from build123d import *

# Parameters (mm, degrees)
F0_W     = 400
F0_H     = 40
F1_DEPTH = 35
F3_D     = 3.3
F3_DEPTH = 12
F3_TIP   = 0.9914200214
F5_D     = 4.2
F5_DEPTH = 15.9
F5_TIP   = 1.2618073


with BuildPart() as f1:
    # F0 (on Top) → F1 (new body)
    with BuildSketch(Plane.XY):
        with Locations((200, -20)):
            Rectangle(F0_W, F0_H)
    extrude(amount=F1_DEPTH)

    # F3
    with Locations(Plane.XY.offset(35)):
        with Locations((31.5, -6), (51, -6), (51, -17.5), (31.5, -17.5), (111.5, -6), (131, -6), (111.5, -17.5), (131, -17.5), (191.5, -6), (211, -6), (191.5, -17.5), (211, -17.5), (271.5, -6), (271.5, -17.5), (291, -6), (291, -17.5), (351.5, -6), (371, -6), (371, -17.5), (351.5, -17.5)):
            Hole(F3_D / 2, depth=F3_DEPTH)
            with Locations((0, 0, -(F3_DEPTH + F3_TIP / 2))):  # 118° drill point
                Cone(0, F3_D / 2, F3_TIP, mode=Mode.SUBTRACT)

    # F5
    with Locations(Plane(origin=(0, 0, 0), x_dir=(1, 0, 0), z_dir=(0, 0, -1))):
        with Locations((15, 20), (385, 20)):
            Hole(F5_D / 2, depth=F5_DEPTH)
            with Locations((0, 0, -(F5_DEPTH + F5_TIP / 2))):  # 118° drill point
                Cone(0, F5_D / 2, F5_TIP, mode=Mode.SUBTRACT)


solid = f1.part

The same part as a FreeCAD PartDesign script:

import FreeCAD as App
import Part
import Sketcher
from FreeCAD import Vector

doc = App.newDocument("Part")
params = doc.addObject("Spreadsheet::Sheet", "Params")
for row, (alias, value) in enumerate([
    ("sketch1_width", "400 mm"),
    ("sketch1_height", "40 mm"),
    ("pad1_length", "35 mm"),
    ("sketch2_diameter", "3.3 mm"),
    ("hole_diameter", "3.3 mm"),
    ("hole_depth", "12 mm"),
    ("sketch3_diameter", "4.2 mm"),
    ("hole2_diameter", "4.2 mm"),
    ("hole2_depth", "15.9 mm"),
], start=1):
    params.set(f"A{row}", alias)
    params.set(f"B{row}", "=" + value)
    params.setAlias(f"B{row}", alias)

body = doc.addObject("PartDesign::Body", "Body")

# Sketch on XY plane
sketch1 = body.newObject("Sketcher::SketchObject", "Sketch")
sketch1.AttachmentSupport = (doc.getObject("XY_Plane"), [""])
sketch1.MapMode = "FlatFace"
sketch1.addGeometry(Part.LineSegment(Vector(0, 0, 0), Vector(0, -40, 0)), False)
sketch1.addGeometry(Part.LineSegment(Vector(0, -40, 0), Vector(400, -40, 0)), False)
sketch1.addGeometry(Part.LineSegment(Vector(400, -40, 0), Vector(400, 0, 0)), False)
sketch1.addGeometry(Part.LineSegment(Vector(400, 0, 0), Vector(0, 0, 0)), False)
sketch1.addConstraint(Sketcher.Constraint("Coincident", 0, 2, 1, 1))
sketch1.addConstraint(Sketcher.Constraint("Coincident", 1, 2, 2, 1))
sketch1.addConstraint(Sketcher.Constraint("Coincident", 2, 2, 3, 1))
sketch1.addConstraint(Sketcher.Constraint("Coincident", 3, 2, 0, 1))
sketch1.addConstraint(Sketcher.Constraint("Vertical", 0))
sketch1.addConstraint(Sketcher.Constraint("Horizontal", 1))
sketch1.addConstraint(Sketcher.Constraint("Vertical", 2))
sketch1.addConstraint(Sketcher.Constraint("Horizontal", 3))
sketch1.addConstraint(Sketcher.Constraint("Coincident", 3, 2, -1, 1))
sketch1.addConstraint(Sketcher.Constraint("DistanceX", 1, 1, 1, 2, 400.0))
sketch1.addConstraint(Sketcher.Constraint("DistanceY", 0, 2, 0, 1, 40.0))
sketch1.setExpression("Constraints[9]", "Params.sketch1_width")
sketch1.setExpression("Constraints[10]", "Params.sketch1_height")
pad1 = body.newObject("PartDesign::Pad", "Pad")
pad1.Profile = sketch1
pad1.setExpression("Length", "Params.pad1_length")

# Sketch on XY plane
sketch2 = body.newObject("Sketcher::SketchObject", "Sketch001")
sketch2.AttachmentSupport = (doc.getObject("XY_Plane"), [""])
sketch2.MapMode = "FlatFace"
sketch2.AttachmentOffset = App.Placement(Vector(0, 0, 35), App.Rotation())
sketch2.addGeometry(Part.Circle(Vector(31.5, -6, 0), Vector(0, 0, 1), 1.65), False)
sketch2.addGeometry(Part.Circle(Vector(51, -6, 0), Vector(0, 0, 1), 1.65), False)
sketch2.addGeometry(Part.Circle(Vector(51, -17.5, 0), Vector(0, 0, 1), 1.65), False)
sketch2.addGeometry(Part.Circle(Vector(31.5, -17.5, 0), Vector(0, 0, 1), 1.65), False)
sketch2.addGeometry(Part.Circle(Vector(111.5, -6, 0), Vector(0, 0, 1), 1.65), False)
sketch2.addGeometry(Part.Circle(Vector(131, -6, 0), Vector(0, 0, 1), 1.65), False)
sketch2.addGeometry(Part.Circle(Vector(111.5, -17.5, 0), Vector(0, 0, 1), 1.65), False)
sketch2.addGeometry(Part.Circle(Vector(131, -17.5, 0), Vector(0, 0, 1), 1.65), False)
sketch2.addGeometry(Part.Circle(Vector(191.5, -6, 0), Vector(0, 0, 1), 1.65), False)
sketch2.addGeometry(Part.Circle(Vector(211, -6, 0), Vector(0, 0, 1), 1.65), False)
sketch2.addGeometry(Part.Circle(Vector(191.5, -17.5, 0), Vector(0, 0, 1), 1.65), False)
sketch2.addGeometry(Part.Circle(Vector(211, -17.5, 0), Vector(0, 0, 1), 1.65), False)
sketch2.addGeometry(Part.Circle(Vector(271.5, -6, 0), Vector(0, 0, 1), 1.65), False)
sketch2.addGeometry(Part.Circle(Vector(271.5, -17.5, 0), Vector(0, 0, 1), 1.65), False)
sketch2.addGeometry(Part.Circle(Vector(291, -6, 0), Vector(0, 0, 1), 1.65), False)
sketch2.addGeometry(Part.Circle(Vector(291, -17.5, 0), Vector(0, 0, 1), 1.65), False)
sketch2.addGeometry(Part.Circle(Vector(351.5, -6, 0), Vector(0, 0, 1), 1.65), False)
sketch2.addGeometry(Part.Circle(Vector(371, -6, 0), Vector(0, 0, 1), 1.65), False)
sketch2.addGeometry(Part.Circle(Vector(371, -17.5, 0), Vector(0, 0, 1), 1.65), False)
sketch2.addGeometry(Part.Circle(Vector(351.5, -17.5, 0), Vector(0, 0, 1), 1.65), False)
sketch2.addConstraint(Sketcher.Constraint("Equal", 0, 1))
sketch2.addConstraint(Sketcher.Constraint("Equal", 1, 2))
sketch2.addConstraint(Sketcher.Constraint("Equal", 2, 3))
sketch2.addConstraint(Sketcher.Constraint("Equal", 3, 4))
sketch2.addConstraint(Sketcher.Constraint("Equal", 4, 5))
sketch2.addConstraint(Sketcher.Constraint("Equal", 5, 6))
sketch2.addConstraint(Sketcher.Constraint("Equal", 6, 7))
sketch2.addConstraint(Sketcher.Constraint("Equal", 7, 8))
sketch2.addConstraint(Sketcher.Constraint("Equal", 8, 9))
sketch2.addConstraint(Sketcher.Constraint("Equal", 9, 10))
sketch2.addConstraint(Sketcher.Constraint("Equal", 10, 11))
sketch2.addConstraint(Sketcher.Constraint("Equal", 11, 12))
sketch2.addConstraint(Sketcher.Constraint("Equal", 12, 13))
sketch2.addConstraint(Sketcher.Constraint("Equal", 13, 14))
sketch2.addConstraint(Sketcher.Constraint("Equal", 14, 15))
sketch2.addConstraint(Sketcher.Constraint("Equal", 15, 16))
sketch2.addConstraint(Sketcher.Constraint("Equal", 16, 17))
sketch2.addConstraint(Sketcher.Constraint("Equal", 17, 18))
sketch2.addConstraint(Sketcher.Constraint("Equal", 18, 19))
sketch2.addConstraint(Sketcher.Constraint("Horizontal", 0, 3, 1, 3))
sketch2.addConstraint(Sketcher.Constraint("Horizontal", 2, 3, 3, 3))
sketch2.addConstraint(Sketcher.Constraint("Horizontal", 1, 3, 4, 3))
sketch2.addConstraint(Sketcher.Constraint("Horizontal", 4, 3, 5, 3))
sketch2.addConstraint(Sketcher.Constraint("Horizontal", 3, 3, 6, 3))
sketch2.addConstraint(Sketcher.Constraint("Horizontal", 6, 3, 7, 3))
sketch2.addConstraint(Sketcher.Constraint("Horizontal", 5, 3, 8, 3))
sketch2.addConstraint(Sketcher.Constraint("Horizontal", 8, 3, 9, 3))
sketch2.addConstraint(Sketcher.Constraint("Horizontal", 7, 3, 10, 3))
sketch2.addConstraint(Sketcher.Constraint("Horizontal", 10, 3, 11, 3))
sketch2.addConstraint(Sketcher.Constraint("Horizontal", 9, 3, 12, 3))
sketch2.addConstraint(Sketcher.Constraint("Horizontal", 11, 3, 13, 3))
sketch2.addConstraint(Sketcher.Constraint("Horizontal", 12, 3, 14, 3))
sketch2.addConstraint(Sketcher.Constraint("Horizontal", 13, 3, 15, 3))
sketch2.addConstraint(Sketcher.Constraint("Horizontal", 14, 3, 16, 3))
sketch2.addConstraint(Sketcher.Constraint("Horizontal", 16, 3, 17, 3))
sketch2.addConstraint(Sketcher.Constraint("Horizontal", 15, 3, 18, 3))
sketch2.addConstraint(Sketcher.Constraint("Horizontal", 18, 3, 19, 3))
sketch2.addConstraint(Sketcher.Constraint("Vertical", 1, 3, 2, 3))
sketch2.addConstraint(Sketcher.Constraint("Vertical", 0, 3, 3, 3))
sketch2.addConstraint(Sketcher.Constraint("Vertical", 4, 3, 6, 3))
sketch2.addConstraint(Sketcher.Constraint("Vertical", 5, 3, 7, 3))
sketch2.addConstraint(Sketcher.Constraint("Vertical", 8, 3, 10, 3))
sketch2.addConstraint(Sketcher.Constraint("Vertical", 9, 3, 11, 3))
sketch2.addConstraint(Sketcher.Constraint("Vertical", 12, 3, 13, 3))
sketch2.addConstraint(Sketcher.Constraint("Vertical", 14, 3, 15, 3))
sketch2.addConstraint(Sketcher.Constraint("Vertical", 17, 3, 18, 3))
sketch2.addConstraint(Sketcher.Constraint("Vertical", 16, 3, 19, 3))
sketch2.addConstraint(Sketcher.Constraint("Diameter", 0, 3.3))
sketch2.addConstraint(Sketcher.Constraint("DistanceY", 0, 3, -1, 1, 6.0))
sketch2.addConstraint(Sketcher.Constraint("DistanceX", -1, 1, 1, 3, 51.0))
sketch2.addConstraint(Sketcher.Constraint("DistanceX", -1, 1, 5, 3, 131.0))
sketch2.addConstraint(Sketcher.Constraint("DistanceX", -1, 1, 9, 3, 211.0))
sketch2.addConstraint(Sketcher.Constraint("DistanceX", -1, 1, 14, 3, 291.0))
sketch2.addConstraint(Sketcher.Constraint("DistanceX", -1, 1, 17, 3, 371.0))
sketch2.addConstraint(Sketcher.Constraint("DistanceX", 0, 3, 4, 3, 80.0))
sketch2.addConstraint(Sketcher.Constraint("DistanceX", 4, 3, 8, 3, 80.0))
sketch2.addConstraint(Sketcher.Constraint("DistanceX", 8, 3, 12, 3, 80.0))
sketch2.addConstraint(Sketcher.Constraint("DistanceX", 12, 3, 16, 3, 80.0))
sketch2.addConstraint(Sketcher.Constraint("DistanceX", -1, 1, 0, 3, 31.5))
sketch2.addConstraint(Sketcher.Constraint("DistanceY", 2, 3, -1, 1, 17.5))
sketch2.setExpression("Constraints[47]", "Params.sketch2_diameter")
doc.recompute()
hole = body.newObject("PartDesign::Hole", "Hole")
hole.Profile = sketch2
hole.ThreadType = "None"
hole.setExpression("Diameter", "Params.hole_diameter")
hole.DepthType = "Dimension"
hole.setExpression("Depth", "Params.hole_depth")
hole.DrillPoint = "Angled"
hole.DrillPointAngle = 118

# Sketch on XY plane
sketch3 = body.newObject("Sketcher::SketchObject", "Sketch002")
sketch3.AttachmentSupport = (doc.getObject("XY_Plane"), [""])
sketch3.MapMode = "FlatFace"
sketch3.addGeometry(Part.Circle(Vector(15, -20, 0), Vector(0, 0, 1), 2.1), False)
sketch3.addGeometry(Part.Circle(Vector(385, -20, 0), Vector(0, 0, 1), 2.1), False)
sketch3.addConstraint(Sketcher.Constraint("Equal", 0, 1))
sketch3.addConstraint(Sketcher.Constraint("Horizontal", 0, 3, 1, 3))
sketch3.addConstraint(Sketcher.Constraint("Diameter", 0, 4.2))
sketch3.addConstraint(Sketcher.Constraint("DistanceX", -1, 1, 0, 3, 15.0))
sketch3.addConstraint(Sketcher.Constraint("DistanceY", 0, 3, -1, 1, 20.0))
sketch3.addConstraint(Sketcher.Constraint("DistanceX", -1, 1, 1, 3, 385.0))
sketch3.setExpression("Constraints[2]", "Params.sketch3_diameter")
doc.recompute()
hole2 = body.newObject("PartDesign::Hole", "Hole001")
hole2.Profile = sketch3
hole2.ThreadType = "None"
hole2.setExpression("Diameter", "Params.hole2_diameter")
hole2.DepthType = "Dimension"
hole2.setExpression("Depth", "Params.hole2_depth")
hole2.DrillPoint = "Angled"
hole2.DrillPointAngle = 118
hole2.Reversed = True

doc.recompute()
